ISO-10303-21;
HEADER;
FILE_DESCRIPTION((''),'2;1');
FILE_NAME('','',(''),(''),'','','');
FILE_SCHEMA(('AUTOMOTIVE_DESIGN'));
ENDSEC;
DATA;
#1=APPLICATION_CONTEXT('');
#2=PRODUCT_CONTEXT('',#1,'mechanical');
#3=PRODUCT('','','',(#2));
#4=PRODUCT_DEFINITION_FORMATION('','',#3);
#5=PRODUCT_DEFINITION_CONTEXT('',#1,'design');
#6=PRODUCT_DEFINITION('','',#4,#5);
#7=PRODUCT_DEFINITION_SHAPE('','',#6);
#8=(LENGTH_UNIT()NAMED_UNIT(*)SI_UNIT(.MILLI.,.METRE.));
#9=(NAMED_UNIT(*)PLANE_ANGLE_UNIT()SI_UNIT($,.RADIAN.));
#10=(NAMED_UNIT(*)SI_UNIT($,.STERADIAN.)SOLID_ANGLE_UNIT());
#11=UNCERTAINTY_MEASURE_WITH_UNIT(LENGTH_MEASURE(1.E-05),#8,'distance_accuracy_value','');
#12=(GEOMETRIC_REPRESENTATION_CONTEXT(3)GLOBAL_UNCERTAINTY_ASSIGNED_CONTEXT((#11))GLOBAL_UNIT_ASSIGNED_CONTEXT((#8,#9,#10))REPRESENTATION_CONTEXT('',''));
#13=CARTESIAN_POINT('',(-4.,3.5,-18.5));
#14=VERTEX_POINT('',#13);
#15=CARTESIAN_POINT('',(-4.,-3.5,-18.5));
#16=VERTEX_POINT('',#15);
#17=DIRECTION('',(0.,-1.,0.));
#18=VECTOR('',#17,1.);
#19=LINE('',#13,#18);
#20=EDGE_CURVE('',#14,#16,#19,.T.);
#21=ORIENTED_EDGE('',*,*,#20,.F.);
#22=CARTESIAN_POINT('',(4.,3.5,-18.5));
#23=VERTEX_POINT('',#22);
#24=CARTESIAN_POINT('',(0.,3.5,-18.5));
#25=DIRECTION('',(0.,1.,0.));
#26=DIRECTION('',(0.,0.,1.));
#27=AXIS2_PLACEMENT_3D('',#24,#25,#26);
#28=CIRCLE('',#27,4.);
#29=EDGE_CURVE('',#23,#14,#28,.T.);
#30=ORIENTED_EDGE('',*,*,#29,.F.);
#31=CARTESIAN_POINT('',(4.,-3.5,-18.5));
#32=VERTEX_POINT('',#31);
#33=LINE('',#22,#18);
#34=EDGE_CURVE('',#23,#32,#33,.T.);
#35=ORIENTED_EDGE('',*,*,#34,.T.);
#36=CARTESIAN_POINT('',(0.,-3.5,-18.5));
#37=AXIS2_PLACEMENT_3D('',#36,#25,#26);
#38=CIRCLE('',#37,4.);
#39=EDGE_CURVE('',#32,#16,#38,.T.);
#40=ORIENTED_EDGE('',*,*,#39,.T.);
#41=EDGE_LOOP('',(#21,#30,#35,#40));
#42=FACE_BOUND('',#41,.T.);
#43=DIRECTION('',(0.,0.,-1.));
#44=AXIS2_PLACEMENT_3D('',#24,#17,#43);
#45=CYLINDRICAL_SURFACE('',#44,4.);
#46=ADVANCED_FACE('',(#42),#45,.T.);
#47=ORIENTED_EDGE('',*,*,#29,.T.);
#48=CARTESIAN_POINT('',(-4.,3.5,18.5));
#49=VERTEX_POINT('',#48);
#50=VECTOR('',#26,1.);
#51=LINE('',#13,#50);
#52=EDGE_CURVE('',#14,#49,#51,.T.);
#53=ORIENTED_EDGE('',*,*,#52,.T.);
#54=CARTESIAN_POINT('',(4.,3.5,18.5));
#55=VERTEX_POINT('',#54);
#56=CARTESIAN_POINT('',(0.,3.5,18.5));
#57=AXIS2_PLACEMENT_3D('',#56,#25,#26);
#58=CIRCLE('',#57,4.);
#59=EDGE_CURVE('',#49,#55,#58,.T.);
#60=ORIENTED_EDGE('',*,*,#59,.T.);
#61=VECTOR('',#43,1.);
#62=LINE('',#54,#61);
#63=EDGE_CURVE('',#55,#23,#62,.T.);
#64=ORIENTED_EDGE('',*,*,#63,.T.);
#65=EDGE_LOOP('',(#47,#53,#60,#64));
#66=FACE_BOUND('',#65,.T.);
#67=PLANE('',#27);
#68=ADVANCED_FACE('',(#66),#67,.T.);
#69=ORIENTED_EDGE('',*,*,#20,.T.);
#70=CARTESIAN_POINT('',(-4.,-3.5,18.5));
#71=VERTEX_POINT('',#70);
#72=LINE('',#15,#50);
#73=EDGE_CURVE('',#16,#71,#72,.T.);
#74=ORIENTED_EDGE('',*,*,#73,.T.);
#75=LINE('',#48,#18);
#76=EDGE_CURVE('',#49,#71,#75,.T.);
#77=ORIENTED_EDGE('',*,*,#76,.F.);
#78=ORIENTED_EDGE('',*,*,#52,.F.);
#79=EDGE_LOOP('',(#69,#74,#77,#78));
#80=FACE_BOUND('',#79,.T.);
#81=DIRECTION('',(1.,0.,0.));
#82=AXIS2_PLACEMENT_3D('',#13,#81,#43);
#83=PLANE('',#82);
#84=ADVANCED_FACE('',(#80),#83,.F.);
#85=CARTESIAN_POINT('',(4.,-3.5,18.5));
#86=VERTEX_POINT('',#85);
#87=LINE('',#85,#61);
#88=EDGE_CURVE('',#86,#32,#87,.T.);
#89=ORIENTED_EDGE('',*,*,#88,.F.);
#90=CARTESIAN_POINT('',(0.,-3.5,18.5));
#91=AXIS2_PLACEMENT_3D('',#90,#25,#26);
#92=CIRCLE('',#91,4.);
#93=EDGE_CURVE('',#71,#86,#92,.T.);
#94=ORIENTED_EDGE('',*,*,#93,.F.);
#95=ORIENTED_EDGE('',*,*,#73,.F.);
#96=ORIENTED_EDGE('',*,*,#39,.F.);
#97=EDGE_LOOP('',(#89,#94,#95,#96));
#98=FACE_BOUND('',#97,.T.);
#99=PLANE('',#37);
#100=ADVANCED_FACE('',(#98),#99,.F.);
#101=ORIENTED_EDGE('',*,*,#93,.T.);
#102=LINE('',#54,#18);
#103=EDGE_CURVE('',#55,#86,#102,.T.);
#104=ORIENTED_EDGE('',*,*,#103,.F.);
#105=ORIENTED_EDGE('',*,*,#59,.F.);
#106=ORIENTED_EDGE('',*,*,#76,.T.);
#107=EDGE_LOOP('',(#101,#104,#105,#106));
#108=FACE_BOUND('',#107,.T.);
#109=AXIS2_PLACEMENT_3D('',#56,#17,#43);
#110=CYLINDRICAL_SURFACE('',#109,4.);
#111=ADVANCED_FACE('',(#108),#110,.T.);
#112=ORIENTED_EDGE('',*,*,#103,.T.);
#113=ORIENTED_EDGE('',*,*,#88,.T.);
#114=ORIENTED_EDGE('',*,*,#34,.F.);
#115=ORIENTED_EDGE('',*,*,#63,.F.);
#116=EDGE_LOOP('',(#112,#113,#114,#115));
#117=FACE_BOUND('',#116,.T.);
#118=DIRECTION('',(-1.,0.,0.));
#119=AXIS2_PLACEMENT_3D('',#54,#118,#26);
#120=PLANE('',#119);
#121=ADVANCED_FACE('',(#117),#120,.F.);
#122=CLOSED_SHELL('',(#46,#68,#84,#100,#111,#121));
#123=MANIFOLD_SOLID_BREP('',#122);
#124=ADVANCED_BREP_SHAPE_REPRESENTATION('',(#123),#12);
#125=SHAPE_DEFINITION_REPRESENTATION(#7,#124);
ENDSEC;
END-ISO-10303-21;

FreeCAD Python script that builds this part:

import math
import FreeCAD as App
import Part
import Sketcher

V = App.Vector

doc = App.newDocument("Part")
params = doc.addObject("Spreadsheet::Sheet", "Params")
for row, (alias, value) in enumerate([
    ("sketch1_radius", "4 mm"),
    ("sketch1_height", "37 mm"),
    ("pad1_length", "7 mm"),
], start=1):
    params.set(f"A{row}", alias)
    params.set(f"B{row}", "=" + value)
    params.setAlias(f"B{row}", alias)

body = doc.addObject("PartDesign::Body", "Body")

# Sketch on XZ plane
sketch1 = doc.addObject("Sketcher::SketchObject", "Sketch")
body.addObject(sketch1)
sketch1.AttachmentSupport = (doc.XZ_Plane, [""])
sketch1.MapMode = "FlatFace"
sketch1.addGeometry(Part.LineSegment(V(-4, -18.5, 0), V(-4, 18.5, 0)), False)
sketch1.addGeometry(Part.ArcOfCircle(Part.Circle(V(0, 18.5, 0), V(0, 0, 1), 4), math.radians(0), math.radians(180)), False)
sketch1.addGeometry(Part.LineSegment(V(4, 18.5, 0), V(4, -18.5, 0)), False)
sketch1.addGeometry(Part.ArcOfCircle(Part.Circle(V(0, -18.5, 0), V(0, 0, 1), 4), math.radians(180), math.radians(360)), False)
sketch1.addConstraint(Sketcher.Constraint("Tangent", 0, 2, 1, 2))
sketch1.addConstraint(Sketcher.Constraint("Tangent", 1, 1, 2, 1))
sketch1.addConstraint(Sketcher.Constraint("Tangent", 2, 2, 3, 2))
sketch1.addConstraint(Sketcher.Constraint("Tangent", 3, 1, 0, 1))
sketch1.addConstraint(Sketcher.Constraint("Vertical", 0))
sketch1.addConstraint(Sketcher.Constraint("Vertical", 2))
sketch1.addConstraint(Sketcher.Constraint("Symmetric", 1, 3, 3, 3, -1, 1))
sketch1.addConstraint(Sketcher.Constraint("Radius", 1, 4.0))
sketch1.addConstraint(Sketcher.Constraint("DistanceY", 0, 1, 0, 2, 37.0))
sketch1.setExpression("Constraints[7]", "Params.sketch1_radius")
sketch1.setExpression("Constraints[8]", "Params.sketch1_height")
pad1 = doc.addObject("PartDesign::Pad", "Pad")
body.addObject(pad1)
pad1.Profile = sketch1
pad1.setExpression("Length", "Params.pad1_length")
pad1.Midplane = True

doc.recompute()
